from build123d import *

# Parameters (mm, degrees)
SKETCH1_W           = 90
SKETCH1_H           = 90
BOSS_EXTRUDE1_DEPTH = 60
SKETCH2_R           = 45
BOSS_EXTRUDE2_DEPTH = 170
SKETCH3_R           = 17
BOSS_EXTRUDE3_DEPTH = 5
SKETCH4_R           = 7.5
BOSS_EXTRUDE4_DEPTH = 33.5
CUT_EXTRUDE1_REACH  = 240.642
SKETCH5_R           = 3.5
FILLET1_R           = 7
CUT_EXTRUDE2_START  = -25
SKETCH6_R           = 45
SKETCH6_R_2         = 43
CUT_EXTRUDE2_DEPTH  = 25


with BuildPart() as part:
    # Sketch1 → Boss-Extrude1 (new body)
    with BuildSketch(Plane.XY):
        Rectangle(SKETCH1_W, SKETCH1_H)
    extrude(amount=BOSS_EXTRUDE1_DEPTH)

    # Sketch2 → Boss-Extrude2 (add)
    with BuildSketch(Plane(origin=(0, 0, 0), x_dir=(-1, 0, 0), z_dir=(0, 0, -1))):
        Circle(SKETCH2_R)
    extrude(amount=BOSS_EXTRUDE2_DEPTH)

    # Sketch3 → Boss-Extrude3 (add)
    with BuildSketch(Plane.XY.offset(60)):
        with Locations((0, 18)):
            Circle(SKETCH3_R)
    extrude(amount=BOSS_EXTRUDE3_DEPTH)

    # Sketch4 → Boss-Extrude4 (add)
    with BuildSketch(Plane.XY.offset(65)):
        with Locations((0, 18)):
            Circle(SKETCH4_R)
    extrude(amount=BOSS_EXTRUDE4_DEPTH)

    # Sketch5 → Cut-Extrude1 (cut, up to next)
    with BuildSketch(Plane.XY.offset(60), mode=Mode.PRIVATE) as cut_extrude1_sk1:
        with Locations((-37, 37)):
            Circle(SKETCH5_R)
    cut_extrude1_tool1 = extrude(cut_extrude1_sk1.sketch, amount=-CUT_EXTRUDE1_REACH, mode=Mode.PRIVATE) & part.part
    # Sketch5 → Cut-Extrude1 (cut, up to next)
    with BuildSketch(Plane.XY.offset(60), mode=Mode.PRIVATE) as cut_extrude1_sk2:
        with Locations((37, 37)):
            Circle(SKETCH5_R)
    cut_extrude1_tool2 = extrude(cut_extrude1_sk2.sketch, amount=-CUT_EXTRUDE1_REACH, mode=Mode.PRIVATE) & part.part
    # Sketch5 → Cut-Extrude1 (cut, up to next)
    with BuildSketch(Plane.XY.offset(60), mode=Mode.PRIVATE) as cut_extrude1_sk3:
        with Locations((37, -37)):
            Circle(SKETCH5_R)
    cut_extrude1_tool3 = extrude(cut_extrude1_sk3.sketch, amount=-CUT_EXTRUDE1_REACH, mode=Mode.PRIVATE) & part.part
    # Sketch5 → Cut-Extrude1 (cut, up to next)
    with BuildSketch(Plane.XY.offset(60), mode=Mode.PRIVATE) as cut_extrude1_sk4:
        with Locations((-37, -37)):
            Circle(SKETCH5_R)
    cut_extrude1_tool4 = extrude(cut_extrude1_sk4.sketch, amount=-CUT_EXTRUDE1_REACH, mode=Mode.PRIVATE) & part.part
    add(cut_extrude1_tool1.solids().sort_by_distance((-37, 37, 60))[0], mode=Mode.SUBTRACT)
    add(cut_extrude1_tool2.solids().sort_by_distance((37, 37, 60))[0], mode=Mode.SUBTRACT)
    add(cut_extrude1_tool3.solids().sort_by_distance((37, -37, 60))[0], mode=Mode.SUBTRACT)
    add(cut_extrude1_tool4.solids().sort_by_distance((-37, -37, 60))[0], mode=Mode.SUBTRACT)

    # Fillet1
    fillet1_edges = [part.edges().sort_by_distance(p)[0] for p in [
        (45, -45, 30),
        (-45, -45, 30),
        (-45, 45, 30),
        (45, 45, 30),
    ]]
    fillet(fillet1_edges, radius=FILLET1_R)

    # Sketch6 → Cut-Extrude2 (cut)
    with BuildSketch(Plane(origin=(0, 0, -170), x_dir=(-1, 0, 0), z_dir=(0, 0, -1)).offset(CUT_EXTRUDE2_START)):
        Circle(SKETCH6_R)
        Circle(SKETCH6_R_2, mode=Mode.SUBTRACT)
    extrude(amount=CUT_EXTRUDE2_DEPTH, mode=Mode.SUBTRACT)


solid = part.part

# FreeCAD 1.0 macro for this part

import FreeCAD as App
import Part
import Sketcher

V = App.Vector


def edges_at(feature, points):
    """Names of the edges that pass closest to the given points."""
    edges = feature.Shape.Edges
    near = lambda p: min(range(len(edges)), key=lambda i: edges[i].distToShape(Part.Vertex(*p))[0])
    return sorted({f"Edge{near(p) + 1}" for p in points})

doc = App.newDocument("Part")
params = doc.addObject("Spreadsheet::Sheet", "Params")
for row, (alias, value) in enumerate([
    ("sketch1_width", "90 mm"),
    ("pad1_length", "60 mm"),
    ("sketch2_diameter", "90 mm"),
    ("pad2_length", "170 mm"),
    ("sketch3_diameter", "34 mm"),
    ("pad3_length", "5 mm"),
    ("sketch4_diameter", "15 mm"),
    ("pad4_length", "33.5 mm"),
    ("sketch5_diameter", "7 mm"),
    ("sketch6_diameter", "7 mm"),
    ("sketch7_diameter", "7 mm"),
    ("sketch8_diameter", "7 mm"),
    ("fillet_radius", "7 mm"),
    ("sketch9_diameter", "90 mm"),
    ("sketch9_diameter2", "86 mm"),
    ("pocket5_length", "25 mm"),
], start=1):
    params.set(f"A{row}", alias)
    params.set(f"B{row}", "=" + value)
    params.setAlias(f"B{row}", alias)

body = doc.addObject("PartDesign::Body", "Body")

sketch1 = doc.addObject("Sketcher::SketchObject", "Sketch")
body.addObject(sketch1)
sketch1.AttachmentSupport = (doc.XY_Plane, [""])
sketch1.MapMode = "FlatFace"
sketch1.addGeometry(Part.LineSegment(V(-45, 45, 0), V(-45, -45, 0)), False)
sketch1.addGeometry(Part.LineSegment(V(-45, -45, 0), V(45, -45, 0)), False)
sketch1.addGeometry(Part.LineSegment(V(45, -45, 0), V(45, 45, 0)), False)
sketch1.addGeometry(Part.LineSegment(V(45, 45, 0), V(-45, 45, 0)), False)
sketch1.addConstraint(Sketcher.Constraint("Coincident", 0, 2, 1, 1))
sketch1.addConstraint(Sketcher.Constraint("Coincident", 1, 2, 2, 1))
sketch1.addConstraint(Sketcher.Constraint("Coincident", 2, 2, 3, 1))
sketch1.addConstraint(Sketcher.Constraint("Coincident", 3, 2, 0, 1))
sketch1.addConstraint(Sketcher.Constraint("Vertical", 0))
sketch1.addConstraint(Sketcher.Constraint("Horizontal", 1))
sketch1.addConstraint(Sketcher.Constraint("Vertical", 2))
sketch1.addConstraint(Sketcher.Constraint("Horizontal", 3))
sketch1.addConstraint(Sketcher.Constraint("Symmetric", 0, 2, 2, 2, -1, 1))
sketch1.addConstraint(Sketcher.Constraint("Equal", 3, 0))
sketch1.addConstraint(Sketcher.Constraint("DistanceX", 1, 1, 1, 2, 90.0))
sketch1.setExpression("Constraints[10]", "Params.sketch1_width")
pad1 = doc.addObject("PartDesign::Pad", "Pad")
body.addObject(pad1)
pad1.Profile = sketch1
pad1.setExpression("Length", "Params.pad1_length")

sketch2 = doc.addObject("Sketcher::SketchObject", "Sketch001")
body.addObject(sketch2)
sketch2.AttachmentSupport = (doc.XY_Plane, [""])
sketch2.MapMode = "FlatFace"
sketch2.addGeometry(Part.Circle(V(0, 0, 0), V(0, 0, 1), 45), False)
sketch2.addConstraint(Sketcher.Constraint("Coincident", 0, 3, -1, 1))
sketch2.addConstraint(Sketcher.Constraint("Diameter", 0, 90.0))
sketch2.setExpression("Constraints[1]", "Params.sketch2_diameter")
pad2 = doc.addObject("PartDesign::Pad", "Pad001")
body.addObject(pad2)
pad2.Profile = sketch2
pad2.setExpression("Length", "Params.pad2_length")
pad2.Reversed = True

sketch3 = doc.addObject("Sketcher::SketchObject", "Sketch002")
body.addObject(sketch3)
sketch3.AttachmentSupport = (doc.XY_Plane, [""])
sketch3.MapMode = "FlatFace"
sketch3.AttachmentOffset = App.Placement(V(0, 0, 60), App.Rotation())
sketch3.addGeometry(Part.Circle(V(0, 18, 0), V(0, 0, 1), 17), False)
sketch3.addConstraint(Sketcher.Constraint("PointOnObject", 0, 3, -2))
sketch3.addConstraint(Sketcher.Constraint("Diameter", 0, 34.0))
sketch3.addConstraint(Sketcher.Constraint("DistanceY", -1, 1, 0, 3, 18.0))
sketch3.setExpression("Constraints[1]", "Params.sketch3_diameter")
pad3 = doc.addObject("PartDesign::Pad", "Pad002")
body.addObject(pad3)
pad3.Profile = sketch3
pad3.setExpression("Length", "Params.pad3_length")

sketch4 = doc.addObject("Sketcher::SketchObject", "Sketch003")
body.addObject(sketch4)
sketch4.AttachmentSupport = (doc.XY_Plane, [""])
sketch4.MapMode = "FlatFace"
sketch4.AttachmentOffset = App.Placement(V(0, 0, 65), App.Rotation())
sketch4.addGeometry(Part.Circle(V(0, 18, 0), V(0, 0, 1), 8), False)
sketch4.addConstraint(Sketcher.Constraint("PointOnObject", 0, 3, -2))
sketch4.addConstraint(Sketcher.Constraint("Diameter", 0, 15.0))
sketch4.addConstraint(Sketcher.Constraint("DistanceY", -1, 1, 0, 3, 18.0))
sketch4.setExpression("Constraints[1]", "Params.sketch4_diameter")
pad4 = doc.addObject("PartDesign::Pad", "Pad003")
body.addObject(pad4)
pad4.Profile = sketch4
pad4.setExpression("Length", "Params.pad4_length")

sketch5 = doc.addObject("Sketcher::SketchObject", "Sketch004")
body.addObject(sketch5)
sketch5.AttachmentSupport = (doc.XY_Plane, [""])
sketch5.MapMode = "FlatFace"
sketch5.AttachmentOffset = App.Placement(V(0, 0, 60), App.Rotation())
sketch5.addGeometry(Part.Circle(V(-37, 37, 0), V(0, 0, 1), 3.5), False)
sketch5.addConstraint(Sketcher.Constraint("Diameter", 0, 7.0))
sketch5.addConstraint(Sketcher.Constraint("DistanceX", 0, 3, -1, 1, 37.0))
sketch5.addConstraint(Sketcher.Constraint("DistanceY", -1, 1, 0, 3, 37.0))
sketch5.setExpression("Constraints[0]", "Params.sketch5_diameter")
pocket1 = doc.addObject("PartDesign::Pocket", "Pocket")
body.addObject(pocket1)
pocket1.Profile = sketch5
pocket1.Type = "UpToFirst"

sketch6 = doc.addObject("Sketcher::SketchObject", "Sketch005")
body.addObject(sketch6)
sketch6.AttachmentSupport = (doc.XY_Plane, [""])
sketch6.MapMode = "FlatFace"
sketch6.AttachmentOffset = App.Placement(V(0, 0, 60), App.Rotation())
sketch6.addGeometry(Part.Circle(V(37, 37, 0), V(0, 0, 1), 3.5), False)
sketch6.addConstraint(Sketcher.Constraint("Diameter", 0, 7.0))
sketch6.addConstraint(Sketcher.Constraint("DistanceX", -1, 1, 0, 3, 37.0))
sketch6.addConstraint(Sketcher.Constraint("DistanceY", -1, 1, 0, 3, 37.0))
sketch6.setExpression("Constraints[0]", "Params.sketch6_diameter")
pocket2 = doc.addObject("PartDesign::Pocket", "Pocket001")
body.addObject(pocket2)
pocket2.Profile = sketch6
pocket2.Type = "UpToFirst"

sketch7 = doc.addObject("Sketcher::SketchObject", "Sketch006")
body.addObject(sketch7)
sketch7.AttachmentSupport = (doc.XY_Plane, [""])
sketch7.MapMode = "FlatFace"
sketch7.AttachmentOffset = App.Placement(V(0, 0, 60), App.Rotation())
sketch7.addGeometry(Part.Circle(V(37, -37, 0), V(0, 0, 1), 3.5), False)
sketch7.addConstraint(Sketcher.Constraint("Diameter", 0, 7.0))
sketch7.addConstraint(Sketcher.Constraint("DistanceX", -1, 1, 0, 3, 37.0))
sketch7.addConstraint(Sketcher.Constraint("DistanceY", 0, 3, -1, 1, 37.0))
sketch7.setExpression("Constraints[0]", "Params.sketch7_diameter")
pocket3 = doc.addObject("PartDesign::Pocket", "Pocket002")
body.addObject(pocket3)
pocket3.Profile = sketch7
pocket3.Type = "UpToFirst"

sketch8 = doc.addObject("Sketcher::SketchObject", "Sketch007")
body.addObject(sketch8)
sketch8.AttachmentSupport = (doc.XY_Plane, [""])
sketch8.MapMode = "FlatFace"
sketch8.AttachmentOffset = App.Placement(V(0, 0, 60), App.Rotation())
sketch8.addGeometry(Part.Circle(V(-37, -37, 0), V(0, 0, 1), 3.5), False)
sketch8.addConstraint(Sketcher.Constraint("Diameter", 0, 7.0))
sketch8.addConstraint(Sketcher.Constraint("DistanceX", 0, 3, -1, 1, 37.0))
sketch8.addConstraint(Sketcher.Constraint("DistanceY", 0, 3, -1, 1, 37.0))
sketch8.setExpression("Constraints[0]", "Params.sketch8_diameter")
pocket4 = doc.addObject("PartDesign::Pocket", "Pocket003")
body.addObject(pocket4)
pocket4.Profile = sketch8
pocket4.Type = "UpToFirst"
doc.recompute()

fillet = doc.addObject("PartDesign::Fillet", "Fillet")
body.addObject(fillet)
fillet.Base = (pocket4, edges_at(pocket4, [
    (45, -45, 30),
    (-45, -45, 30),
    (-45, 45, 30),
    (45, 45, 30),
]))
fillet.setExpression("Radius", "Params.fillet_radius")

sketch9 = doc.addObject("Sketcher::SketchObject", "Sketch008")
body.addObject(sketch9)
sketch9.AttachmentSupport = (doc.XY_Plane, [""])
sketch9.MapMode = "FlatFace"
sketch9.AttachmentOffset = App.Placement(V(0, 0, -145), App.Rotation())
sketch9.addGeometry(Part.Circle(V(0, 0, 0), V(0, 0, 1), 45), False)
sketch9.addGeometry(Part.Circle(V(0, 0, 0), V(0, 0, 1), 43), False)
sketch9.addConstraint(Sketcher.Constraint("Coincident", 0, 3, -1, 1))
sketch9.addConstraint(Sketcher.Constraint("Coincident", 1, 3, -1, 1))
sketch9.addConstraint(Sketcher.Constraint("Diameter", 0, 90.0))
sketch9.addConstraint(Sketcher.Constraint("Diameter", 1, 86.0))
sketch9.setExpression("Constraints[2]", "Params.sketch9_diameter")
sketch9.setExpression("Constraints[3]", "Params.sketch9_diameter2")
pocket5 = doc.addObject("PartDesign::Pocket", "Pocket004")
body.addObject(pocket5)
pocket5.Profile = sketch9
pocket5.setExpression("Length", "Params.pocket5_length")

doc.recompute()
